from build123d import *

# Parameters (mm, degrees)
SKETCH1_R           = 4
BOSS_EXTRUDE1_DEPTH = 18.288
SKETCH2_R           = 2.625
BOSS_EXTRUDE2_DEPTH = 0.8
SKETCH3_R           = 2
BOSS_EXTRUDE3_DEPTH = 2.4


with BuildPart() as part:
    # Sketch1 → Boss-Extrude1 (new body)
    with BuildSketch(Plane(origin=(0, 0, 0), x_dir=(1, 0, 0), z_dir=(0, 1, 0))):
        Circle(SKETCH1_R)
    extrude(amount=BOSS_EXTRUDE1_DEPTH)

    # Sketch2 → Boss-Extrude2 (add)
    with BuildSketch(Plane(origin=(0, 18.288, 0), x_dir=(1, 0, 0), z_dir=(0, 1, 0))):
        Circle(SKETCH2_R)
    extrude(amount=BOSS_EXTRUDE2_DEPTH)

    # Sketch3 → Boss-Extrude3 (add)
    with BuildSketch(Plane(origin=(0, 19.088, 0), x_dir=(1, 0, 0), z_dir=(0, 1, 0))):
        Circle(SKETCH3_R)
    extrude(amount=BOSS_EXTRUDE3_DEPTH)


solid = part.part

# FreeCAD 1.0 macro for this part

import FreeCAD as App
import Part
import Sketcher
from FreeCAD import Vector
Q = App.Units.Quantity

doc = App.newDocument("Part")
body = doc.addObject("PartDesign::Body", "Body")

# Sketch on XZ plane
sketch1 = body.newObject("Sketcher::SketchObject", "Sketch")
sketch1.AttachmentSupport = (doc.getObject("XZ_Plane"), [""])
sketch1.MapMode = "FlatFace"
sketch1.addGeometry(Part.Circle(Vector(0, 0, 0), Vector(0, 0, 1), 4), False)
sketch1.addConstraint([
    Sketcher.Constraint("Coincident", 0, 3, -1, 1),
    Sketcher.Constraint("Diameter", 0, Q("8 mm")),
])
pad1 = body.newObject("PartDesign::Pad", "Pad")
pad1.Profile = sketch1
pad1.Length = 18.288
pad1.Reversed = True

# Sketch on XZ plane
sketch2 = body.newObject("Sketcher::SketchObject", "Sketch001")
sketch2.AttachmentSupport = (doc.getObject("XZ_Plane"), [""])
sketch2.MapMode = "FlatFace"
sketch2.AttachmentOffset = App.Placement(Vector(0, 0, -18.288), App.Rotation())
sketch2.addGeometry(Part.Circle(Vector(0, 0, 0), Vector(0, 0, 1), 2.6), False)
sketch2.addConstraint([
    Sketcher.Constraint("Coincident", 0, 3, -1, 1),
    Sketcher.Constraint("Diameter", 0, Q("5.25 mm")),
])
pad2 = body.newObject("PartDesign::Pad", "Pad001")
pad2.Profile = sketch2
pad2.Length = 0.8
pad2.Reversed = True

# Sketch on XZ plane
sketch3 = body.newObject("Sketcher::SketchObject", "Sketch002")
sketch3.AttachmentSupport = (doc.getObject("XZ_Plane"), [""])
sketch3.MapMode = "FlatFace"
sketch3.AttachmentOffset = App.Placement(Vector(0, 0, -19.088), App.Rotation())
sketch3.addGeometry(Part.Circle(Vector(0, 0, 0), Vector(0, 0, 1), 2), False)
sketch3.addConstraint([
    Sketcher.Constraint("Coincident", 0, 3, -1, 1),
    Sketcher.Constraint("Diameter", 0, Q("4 mm")),
])
pad3 = body.newObject("PartDesign::Pad", "Pad002")
pad3.Profile = sketch3
pad3.Length = 2.4
pad3.Reversed = True

doc.recompute()
